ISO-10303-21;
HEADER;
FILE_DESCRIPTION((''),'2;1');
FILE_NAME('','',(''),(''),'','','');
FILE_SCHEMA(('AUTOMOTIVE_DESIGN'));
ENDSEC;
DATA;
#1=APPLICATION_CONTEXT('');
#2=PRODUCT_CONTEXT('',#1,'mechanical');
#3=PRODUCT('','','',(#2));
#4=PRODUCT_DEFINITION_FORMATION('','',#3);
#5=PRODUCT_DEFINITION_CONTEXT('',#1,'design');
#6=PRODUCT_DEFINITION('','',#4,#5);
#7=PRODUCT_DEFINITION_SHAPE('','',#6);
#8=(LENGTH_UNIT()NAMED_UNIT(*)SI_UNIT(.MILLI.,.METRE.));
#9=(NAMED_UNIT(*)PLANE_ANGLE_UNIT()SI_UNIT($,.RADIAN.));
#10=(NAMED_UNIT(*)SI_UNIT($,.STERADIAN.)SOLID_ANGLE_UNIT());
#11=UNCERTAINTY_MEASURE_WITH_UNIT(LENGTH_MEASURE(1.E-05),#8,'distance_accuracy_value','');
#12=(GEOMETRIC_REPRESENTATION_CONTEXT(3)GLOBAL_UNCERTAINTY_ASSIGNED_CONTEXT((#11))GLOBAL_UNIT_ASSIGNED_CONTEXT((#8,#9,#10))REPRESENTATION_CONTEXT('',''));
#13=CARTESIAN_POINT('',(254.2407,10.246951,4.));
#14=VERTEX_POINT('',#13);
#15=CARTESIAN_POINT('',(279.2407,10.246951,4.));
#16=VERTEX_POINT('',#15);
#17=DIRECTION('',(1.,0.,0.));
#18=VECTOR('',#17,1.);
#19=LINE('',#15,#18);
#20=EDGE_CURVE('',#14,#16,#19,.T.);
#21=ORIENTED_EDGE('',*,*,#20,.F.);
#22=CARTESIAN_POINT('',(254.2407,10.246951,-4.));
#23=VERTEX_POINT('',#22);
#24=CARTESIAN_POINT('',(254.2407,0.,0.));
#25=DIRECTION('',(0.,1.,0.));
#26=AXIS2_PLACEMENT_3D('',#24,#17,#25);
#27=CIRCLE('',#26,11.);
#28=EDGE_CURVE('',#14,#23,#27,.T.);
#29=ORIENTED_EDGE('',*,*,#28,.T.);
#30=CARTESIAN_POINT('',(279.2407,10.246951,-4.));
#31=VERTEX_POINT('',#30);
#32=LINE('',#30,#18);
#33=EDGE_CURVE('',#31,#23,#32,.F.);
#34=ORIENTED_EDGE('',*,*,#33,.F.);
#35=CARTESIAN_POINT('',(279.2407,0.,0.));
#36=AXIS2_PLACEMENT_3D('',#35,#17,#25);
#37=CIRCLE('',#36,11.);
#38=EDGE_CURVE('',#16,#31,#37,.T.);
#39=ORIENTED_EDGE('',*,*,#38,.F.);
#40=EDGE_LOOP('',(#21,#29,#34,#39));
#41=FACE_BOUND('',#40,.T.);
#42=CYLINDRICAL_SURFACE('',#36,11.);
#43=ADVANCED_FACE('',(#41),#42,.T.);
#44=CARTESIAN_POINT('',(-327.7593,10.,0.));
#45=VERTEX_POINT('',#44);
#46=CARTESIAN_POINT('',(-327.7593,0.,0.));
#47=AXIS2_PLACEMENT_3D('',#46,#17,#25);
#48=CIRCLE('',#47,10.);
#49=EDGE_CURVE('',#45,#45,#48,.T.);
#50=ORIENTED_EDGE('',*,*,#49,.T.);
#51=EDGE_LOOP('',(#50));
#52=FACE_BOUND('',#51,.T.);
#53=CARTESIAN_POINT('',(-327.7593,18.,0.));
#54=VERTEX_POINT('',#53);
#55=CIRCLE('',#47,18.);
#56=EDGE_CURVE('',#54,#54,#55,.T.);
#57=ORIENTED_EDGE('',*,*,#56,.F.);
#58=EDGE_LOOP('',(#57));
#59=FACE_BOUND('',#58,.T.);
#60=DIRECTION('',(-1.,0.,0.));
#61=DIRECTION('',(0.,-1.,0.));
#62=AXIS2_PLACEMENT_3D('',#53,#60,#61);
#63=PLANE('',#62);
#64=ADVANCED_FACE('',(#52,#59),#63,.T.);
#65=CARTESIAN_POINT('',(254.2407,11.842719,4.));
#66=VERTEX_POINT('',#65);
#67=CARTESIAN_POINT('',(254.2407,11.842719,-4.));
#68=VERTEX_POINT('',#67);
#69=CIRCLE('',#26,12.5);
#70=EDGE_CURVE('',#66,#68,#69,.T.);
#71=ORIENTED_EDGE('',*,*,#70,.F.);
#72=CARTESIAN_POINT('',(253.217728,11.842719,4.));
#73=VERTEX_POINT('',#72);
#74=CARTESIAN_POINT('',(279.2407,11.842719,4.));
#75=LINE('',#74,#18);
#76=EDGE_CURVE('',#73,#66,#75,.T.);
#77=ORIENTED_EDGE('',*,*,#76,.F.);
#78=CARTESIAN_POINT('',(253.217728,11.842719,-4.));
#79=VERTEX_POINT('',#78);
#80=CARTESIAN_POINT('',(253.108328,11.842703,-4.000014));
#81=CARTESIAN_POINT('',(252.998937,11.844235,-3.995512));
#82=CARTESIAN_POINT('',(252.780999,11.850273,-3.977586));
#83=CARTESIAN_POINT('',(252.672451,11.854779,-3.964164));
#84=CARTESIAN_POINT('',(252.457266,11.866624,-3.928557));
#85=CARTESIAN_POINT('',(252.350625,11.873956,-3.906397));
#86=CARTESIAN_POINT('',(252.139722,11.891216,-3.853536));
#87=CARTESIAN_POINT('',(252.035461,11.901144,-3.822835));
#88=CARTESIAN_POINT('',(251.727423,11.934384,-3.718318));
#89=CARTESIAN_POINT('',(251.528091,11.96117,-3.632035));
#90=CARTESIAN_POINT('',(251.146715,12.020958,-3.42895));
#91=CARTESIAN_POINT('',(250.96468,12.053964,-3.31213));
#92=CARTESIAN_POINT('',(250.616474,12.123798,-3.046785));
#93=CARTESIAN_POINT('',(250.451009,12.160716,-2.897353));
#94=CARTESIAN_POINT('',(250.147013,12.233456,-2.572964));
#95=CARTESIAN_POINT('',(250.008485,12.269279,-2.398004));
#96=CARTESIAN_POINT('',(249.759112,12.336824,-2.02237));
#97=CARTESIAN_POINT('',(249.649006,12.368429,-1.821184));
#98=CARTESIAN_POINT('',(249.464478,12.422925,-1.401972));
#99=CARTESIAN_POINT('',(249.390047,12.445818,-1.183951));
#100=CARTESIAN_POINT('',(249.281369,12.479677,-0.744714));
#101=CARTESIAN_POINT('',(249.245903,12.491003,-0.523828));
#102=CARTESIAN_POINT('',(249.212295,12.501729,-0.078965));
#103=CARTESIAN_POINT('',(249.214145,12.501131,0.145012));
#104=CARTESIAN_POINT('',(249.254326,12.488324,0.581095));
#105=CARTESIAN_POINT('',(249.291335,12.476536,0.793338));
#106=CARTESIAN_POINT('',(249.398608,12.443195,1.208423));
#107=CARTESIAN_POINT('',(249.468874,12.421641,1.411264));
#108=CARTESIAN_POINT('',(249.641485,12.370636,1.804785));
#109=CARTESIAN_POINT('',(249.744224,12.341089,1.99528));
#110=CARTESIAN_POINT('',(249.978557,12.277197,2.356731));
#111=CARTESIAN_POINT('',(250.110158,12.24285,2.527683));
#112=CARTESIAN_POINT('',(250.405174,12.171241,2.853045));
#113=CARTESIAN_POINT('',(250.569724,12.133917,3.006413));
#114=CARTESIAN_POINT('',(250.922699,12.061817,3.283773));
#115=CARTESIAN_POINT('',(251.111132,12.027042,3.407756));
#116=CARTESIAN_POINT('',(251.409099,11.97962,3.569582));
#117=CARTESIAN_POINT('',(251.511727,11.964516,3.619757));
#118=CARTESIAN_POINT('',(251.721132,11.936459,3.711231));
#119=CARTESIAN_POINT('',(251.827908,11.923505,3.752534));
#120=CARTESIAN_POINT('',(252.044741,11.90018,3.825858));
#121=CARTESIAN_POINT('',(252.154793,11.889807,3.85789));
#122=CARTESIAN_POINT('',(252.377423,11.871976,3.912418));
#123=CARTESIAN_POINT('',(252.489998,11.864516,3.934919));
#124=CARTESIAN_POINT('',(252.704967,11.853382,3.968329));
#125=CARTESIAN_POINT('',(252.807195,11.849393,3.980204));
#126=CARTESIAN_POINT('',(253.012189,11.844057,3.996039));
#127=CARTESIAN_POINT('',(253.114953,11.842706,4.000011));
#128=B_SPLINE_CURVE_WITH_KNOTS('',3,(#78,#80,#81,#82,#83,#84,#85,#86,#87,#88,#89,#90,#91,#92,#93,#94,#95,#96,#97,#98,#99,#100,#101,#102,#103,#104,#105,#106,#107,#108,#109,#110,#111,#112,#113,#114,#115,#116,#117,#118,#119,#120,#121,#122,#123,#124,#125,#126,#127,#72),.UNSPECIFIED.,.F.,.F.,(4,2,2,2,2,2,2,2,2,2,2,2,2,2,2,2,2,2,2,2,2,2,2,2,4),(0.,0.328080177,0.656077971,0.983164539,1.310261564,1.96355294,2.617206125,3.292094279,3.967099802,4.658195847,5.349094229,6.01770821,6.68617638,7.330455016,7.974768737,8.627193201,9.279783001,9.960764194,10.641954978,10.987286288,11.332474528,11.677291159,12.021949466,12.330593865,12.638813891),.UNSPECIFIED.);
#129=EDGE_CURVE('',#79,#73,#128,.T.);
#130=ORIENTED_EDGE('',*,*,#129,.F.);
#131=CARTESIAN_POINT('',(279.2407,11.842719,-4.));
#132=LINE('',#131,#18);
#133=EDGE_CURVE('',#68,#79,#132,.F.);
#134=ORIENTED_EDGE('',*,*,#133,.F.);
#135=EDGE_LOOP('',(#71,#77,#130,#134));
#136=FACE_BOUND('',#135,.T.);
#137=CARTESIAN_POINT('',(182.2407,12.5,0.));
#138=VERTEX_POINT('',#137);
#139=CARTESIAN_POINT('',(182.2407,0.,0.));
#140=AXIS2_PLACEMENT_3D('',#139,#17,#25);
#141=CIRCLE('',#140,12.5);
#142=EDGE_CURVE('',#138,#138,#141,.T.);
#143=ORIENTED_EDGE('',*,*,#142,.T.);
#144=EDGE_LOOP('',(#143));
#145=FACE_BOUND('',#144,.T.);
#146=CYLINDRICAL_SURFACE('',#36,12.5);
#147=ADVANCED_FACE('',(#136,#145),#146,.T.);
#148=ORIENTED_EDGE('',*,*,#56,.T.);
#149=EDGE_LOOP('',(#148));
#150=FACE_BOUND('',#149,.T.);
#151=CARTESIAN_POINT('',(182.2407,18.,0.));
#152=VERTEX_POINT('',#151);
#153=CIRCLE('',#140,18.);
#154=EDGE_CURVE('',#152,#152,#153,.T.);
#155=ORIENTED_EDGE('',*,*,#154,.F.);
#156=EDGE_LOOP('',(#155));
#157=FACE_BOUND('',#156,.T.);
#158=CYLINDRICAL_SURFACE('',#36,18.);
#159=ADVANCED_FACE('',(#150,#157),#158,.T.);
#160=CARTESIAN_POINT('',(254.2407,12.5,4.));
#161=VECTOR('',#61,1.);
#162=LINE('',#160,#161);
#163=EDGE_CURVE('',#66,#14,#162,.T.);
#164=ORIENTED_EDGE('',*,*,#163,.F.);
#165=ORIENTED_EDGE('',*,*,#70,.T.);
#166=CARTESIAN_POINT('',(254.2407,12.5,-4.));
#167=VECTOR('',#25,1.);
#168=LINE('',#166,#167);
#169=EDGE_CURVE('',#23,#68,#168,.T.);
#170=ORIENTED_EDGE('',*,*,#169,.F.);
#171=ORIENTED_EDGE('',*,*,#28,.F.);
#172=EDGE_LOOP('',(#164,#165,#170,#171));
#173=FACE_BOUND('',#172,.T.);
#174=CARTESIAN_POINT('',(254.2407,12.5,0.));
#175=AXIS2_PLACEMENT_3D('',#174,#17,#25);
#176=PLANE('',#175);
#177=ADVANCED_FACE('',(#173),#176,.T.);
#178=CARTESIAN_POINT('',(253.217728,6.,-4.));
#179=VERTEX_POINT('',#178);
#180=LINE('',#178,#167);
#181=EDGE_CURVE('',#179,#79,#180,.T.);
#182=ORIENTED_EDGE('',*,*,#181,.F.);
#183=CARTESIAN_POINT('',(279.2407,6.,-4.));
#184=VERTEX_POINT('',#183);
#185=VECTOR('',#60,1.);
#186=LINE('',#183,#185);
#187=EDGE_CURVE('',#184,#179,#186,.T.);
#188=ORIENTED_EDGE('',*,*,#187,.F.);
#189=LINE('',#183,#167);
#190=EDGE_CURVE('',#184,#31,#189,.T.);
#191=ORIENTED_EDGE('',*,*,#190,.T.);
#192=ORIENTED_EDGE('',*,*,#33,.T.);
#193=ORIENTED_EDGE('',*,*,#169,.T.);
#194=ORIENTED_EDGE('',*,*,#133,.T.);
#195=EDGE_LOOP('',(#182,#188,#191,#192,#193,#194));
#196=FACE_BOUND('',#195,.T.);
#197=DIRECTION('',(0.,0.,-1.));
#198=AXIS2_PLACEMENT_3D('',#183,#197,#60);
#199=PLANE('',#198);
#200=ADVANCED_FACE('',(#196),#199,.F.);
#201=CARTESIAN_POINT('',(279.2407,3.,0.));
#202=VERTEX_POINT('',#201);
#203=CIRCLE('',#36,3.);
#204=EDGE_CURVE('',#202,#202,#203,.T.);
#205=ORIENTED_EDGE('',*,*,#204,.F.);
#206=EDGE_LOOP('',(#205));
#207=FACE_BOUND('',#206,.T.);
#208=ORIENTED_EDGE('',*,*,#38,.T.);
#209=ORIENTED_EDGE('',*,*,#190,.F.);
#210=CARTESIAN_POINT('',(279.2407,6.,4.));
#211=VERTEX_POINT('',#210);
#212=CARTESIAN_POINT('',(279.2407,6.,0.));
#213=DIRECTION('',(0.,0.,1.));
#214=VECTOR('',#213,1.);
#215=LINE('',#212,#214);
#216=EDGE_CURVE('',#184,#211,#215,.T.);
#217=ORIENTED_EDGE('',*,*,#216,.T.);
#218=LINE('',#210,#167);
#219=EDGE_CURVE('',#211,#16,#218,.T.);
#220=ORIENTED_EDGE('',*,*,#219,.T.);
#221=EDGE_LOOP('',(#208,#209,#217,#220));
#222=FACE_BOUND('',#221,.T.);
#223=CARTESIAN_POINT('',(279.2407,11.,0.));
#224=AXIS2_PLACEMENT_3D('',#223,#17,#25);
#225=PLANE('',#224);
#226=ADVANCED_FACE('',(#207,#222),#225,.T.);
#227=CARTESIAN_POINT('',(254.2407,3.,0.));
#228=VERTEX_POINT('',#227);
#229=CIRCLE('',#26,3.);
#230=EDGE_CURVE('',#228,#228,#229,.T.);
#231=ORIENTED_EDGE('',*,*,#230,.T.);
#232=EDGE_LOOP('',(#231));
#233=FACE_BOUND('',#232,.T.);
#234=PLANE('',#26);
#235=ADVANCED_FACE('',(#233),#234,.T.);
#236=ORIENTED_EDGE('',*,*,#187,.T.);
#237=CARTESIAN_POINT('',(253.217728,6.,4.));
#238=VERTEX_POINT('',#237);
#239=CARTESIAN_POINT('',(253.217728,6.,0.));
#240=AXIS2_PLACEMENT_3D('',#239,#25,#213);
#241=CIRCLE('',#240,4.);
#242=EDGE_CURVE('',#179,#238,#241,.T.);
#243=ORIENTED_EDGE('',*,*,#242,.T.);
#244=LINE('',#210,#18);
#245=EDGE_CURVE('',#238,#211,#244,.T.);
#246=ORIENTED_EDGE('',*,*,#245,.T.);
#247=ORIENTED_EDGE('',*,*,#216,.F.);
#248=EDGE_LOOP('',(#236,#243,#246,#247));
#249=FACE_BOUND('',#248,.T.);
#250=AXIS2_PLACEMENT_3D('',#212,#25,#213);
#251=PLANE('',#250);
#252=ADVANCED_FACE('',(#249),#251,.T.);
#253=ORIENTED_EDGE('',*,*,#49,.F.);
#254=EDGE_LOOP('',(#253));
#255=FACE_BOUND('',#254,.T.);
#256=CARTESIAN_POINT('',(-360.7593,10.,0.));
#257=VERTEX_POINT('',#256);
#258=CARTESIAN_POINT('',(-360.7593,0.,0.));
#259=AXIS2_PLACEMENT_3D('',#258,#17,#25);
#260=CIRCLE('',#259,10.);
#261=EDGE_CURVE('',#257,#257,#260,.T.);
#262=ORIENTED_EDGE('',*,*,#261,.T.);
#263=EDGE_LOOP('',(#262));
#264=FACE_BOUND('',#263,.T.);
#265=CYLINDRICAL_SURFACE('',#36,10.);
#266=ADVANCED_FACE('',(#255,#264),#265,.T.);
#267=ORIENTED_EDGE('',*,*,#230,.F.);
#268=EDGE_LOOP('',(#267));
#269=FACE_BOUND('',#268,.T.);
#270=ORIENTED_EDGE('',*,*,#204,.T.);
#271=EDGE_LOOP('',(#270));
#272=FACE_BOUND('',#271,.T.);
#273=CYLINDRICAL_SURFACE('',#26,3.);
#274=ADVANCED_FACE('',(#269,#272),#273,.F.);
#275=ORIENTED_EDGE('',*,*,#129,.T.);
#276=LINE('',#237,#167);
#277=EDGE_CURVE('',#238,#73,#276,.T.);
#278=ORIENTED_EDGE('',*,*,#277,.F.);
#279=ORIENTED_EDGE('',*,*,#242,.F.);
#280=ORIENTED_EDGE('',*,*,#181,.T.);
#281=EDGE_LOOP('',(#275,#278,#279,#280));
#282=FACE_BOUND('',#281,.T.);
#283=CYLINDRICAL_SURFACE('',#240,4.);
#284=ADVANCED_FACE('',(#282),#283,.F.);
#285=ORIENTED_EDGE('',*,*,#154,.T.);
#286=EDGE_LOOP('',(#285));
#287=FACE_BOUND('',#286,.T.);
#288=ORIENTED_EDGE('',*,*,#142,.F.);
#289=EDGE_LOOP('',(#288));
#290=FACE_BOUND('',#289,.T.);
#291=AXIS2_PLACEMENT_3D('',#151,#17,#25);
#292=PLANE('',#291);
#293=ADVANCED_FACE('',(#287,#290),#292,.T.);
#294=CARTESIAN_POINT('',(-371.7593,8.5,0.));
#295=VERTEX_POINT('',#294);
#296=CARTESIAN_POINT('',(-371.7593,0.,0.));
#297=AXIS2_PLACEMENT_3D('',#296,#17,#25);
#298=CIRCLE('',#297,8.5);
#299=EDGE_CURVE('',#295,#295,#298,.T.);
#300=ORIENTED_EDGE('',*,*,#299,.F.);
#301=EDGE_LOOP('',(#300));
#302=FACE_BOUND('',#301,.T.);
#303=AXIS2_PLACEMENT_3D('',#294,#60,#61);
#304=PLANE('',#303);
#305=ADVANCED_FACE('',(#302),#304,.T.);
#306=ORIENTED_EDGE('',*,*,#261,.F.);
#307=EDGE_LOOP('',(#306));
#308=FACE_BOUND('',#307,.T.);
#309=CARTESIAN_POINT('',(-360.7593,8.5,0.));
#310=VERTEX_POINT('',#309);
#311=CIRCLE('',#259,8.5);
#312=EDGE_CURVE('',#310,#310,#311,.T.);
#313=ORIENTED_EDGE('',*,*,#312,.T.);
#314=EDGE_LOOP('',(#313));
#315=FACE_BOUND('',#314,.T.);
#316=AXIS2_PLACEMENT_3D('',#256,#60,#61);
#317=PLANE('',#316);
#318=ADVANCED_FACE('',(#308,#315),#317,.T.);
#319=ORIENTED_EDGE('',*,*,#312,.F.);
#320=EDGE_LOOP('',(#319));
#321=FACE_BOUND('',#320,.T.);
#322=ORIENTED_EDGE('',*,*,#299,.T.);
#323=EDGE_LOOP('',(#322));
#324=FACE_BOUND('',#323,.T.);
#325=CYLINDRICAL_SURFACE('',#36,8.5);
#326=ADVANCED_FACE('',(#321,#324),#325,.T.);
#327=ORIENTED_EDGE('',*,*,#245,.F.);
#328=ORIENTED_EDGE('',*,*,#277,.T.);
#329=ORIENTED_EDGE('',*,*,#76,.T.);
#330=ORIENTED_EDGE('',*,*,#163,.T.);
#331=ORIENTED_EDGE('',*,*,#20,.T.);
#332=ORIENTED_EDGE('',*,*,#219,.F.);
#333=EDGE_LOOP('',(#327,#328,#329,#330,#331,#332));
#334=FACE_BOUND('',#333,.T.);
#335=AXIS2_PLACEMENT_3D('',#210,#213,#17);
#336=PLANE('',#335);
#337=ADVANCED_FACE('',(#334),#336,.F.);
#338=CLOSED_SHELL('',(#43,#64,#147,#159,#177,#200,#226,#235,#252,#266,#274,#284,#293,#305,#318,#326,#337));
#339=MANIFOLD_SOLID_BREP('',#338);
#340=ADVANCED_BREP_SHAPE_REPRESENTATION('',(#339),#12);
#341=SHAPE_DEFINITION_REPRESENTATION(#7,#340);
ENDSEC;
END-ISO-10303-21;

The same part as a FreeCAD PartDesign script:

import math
import FreeCAD as App
import Part
import Sketcher

V = App.Vector
Q = App.Units.Quantity


def add_polygon(sketch, points):
    """Adds a closed chain of lines whose ends are joined by coincident constraints."""
    first, n = sketch.GeometryCount, len(points)
    for a, b in zip(points, points[1:] + points[:1]):
        sketch.addGeometry(Part.LineSegment(App.Vector(*a, 0), App.Vector(*b, 0)), False)
    for i in range(n):
        sketch.addConstraint(Sketcher.Constraint("Coincident", first + i, 2, first + (i + 1) % n, 1))

doc = App.newDocument("Part")
body = doc.addObject("PartDesign::Body", "Body")

sketch1 = body.newObject("Sketcher::SketchObject", "Sketch")
sketch1.AttachmentSupport = (doc.getObject("XY_Plane"), [""])
sketch1.MapMode = "FlatFace"
add_polygon(sketch1, [(279.2407, 11), (254.2407, 11), (254.2407, 12.5), (182.2407, 12.5), (182.2407, 18), (-327.7593, 18), (-327.7593, 10), (-360.7593, 10), (-360.7593, 8.5), (-371.7593, 8.5), (-371.7593, 0), (279.2407, 0)])
sketch1.addConstraint([
    Sketcher.Constraint("Horizontal", 0),
    Sketcher.Constraint("Vertical", 1),
    Sketcher.Constraint("Horizontal", 2),
    Sketcher.Constraint("Vertical", 3),
    Sketcher.Constraint("Horizontal", 4),
    Sketcher.Constraint("Vertical", 5),
    Sketcher.Constraint("Horizontal", 6),
    Sketcher.Constraint("Vertical", 7),
    Sketcher.Constraint("Horizontal", 8),
    Sketcher.Constraint("Vertical", 9),
    Sketcher.Constraint("Horizontal", 10),
    Sketcher.Constraint("Vertical", 11),
    Sketcher.Constraint("PointOnObject", 9, 2, -1),
    Sketcher.Constraint("Equal", 1, 7),
    Sketcher.Constraint("Equal", 8, 11),
    Sketcher.Constraint("DistanceX", 0, 2, 0, 1, Q("25 mm")),
    Sketcher.Constraint("DistanceX", 2, 2, 2, 1, Q("72 mm")),
    Sketcher.Constraint("DistanceX", 4, 2, 4, 1, Q("510 mm")),
    Sketcher.Constraint("DistanceX", 6, 2, 6, 1, Q("33 mm")),
    Sketcher.Constraint("DistanceX", 8, 2, 8, 1, Q("11 mm")),
    Sketcher.Constraint("DistanceY", 5, 2, 5, 1, Q("8 mm")),
    Sketcher.Constraint("DistanceY", 1, 1, 1, 2, Q("1.5 mm")),
    Sketcher.Constraint("DistanceY", 3, 1, 3, 2, Q("5.5 mm")),
    Sketcher.Constraint("DistanceX", -1, 1, 0, 2, Q("254.2407 mm")),
])
revolution = body.newObject("PartDesign::Revolution", "Revolution")
revolution.Profile = sketch1
revolution.ReferenceAxis = (sketch1, ["H_Axis"])
revolution.Angle = 360

sketch2 = body.newObject("Sketcher::SketchObject", "Sketch001")
sketch2.AttachmentSupport = (doc.getObject("XZ_Plane"), [""])
sketch2.MapMode = "FlatFace"
sketch2.AttachmentOffset = App.Placement(V(0, 0, -20), App.Rotation())
sketch2.addGeometry([
    Part.LineSegment(V(253.217728, 4, 0), V(279.2407, 4, 0)),
    Part.ArcOfCircle(Part.Circle(V(279.2407, 0, 0), V(0, 0, 1), 4), math.radians(-90), math.radians(90)),
    Part.LineSegment(V(279.2407, -4, 0), V(253.217728, -4, 0)),
    Part.ArcOfCircle(Part.Circle(V(253.217728, 0, 0), V(0, 0, 1), 4), math.radians(90), math.radians(270)),
], False)
sketch2.addConstraint([
    Sketcher.Constraint("Tangent", 0, 2, 1, 2),
    Sketcher.Constraint("Tangent", 1, 1, 2, 1),
    Sketcher.Constraint("Tangent", 2, 2, 3, 2),
    Sketcher.Constraint("Tangent", 3, 1, 0, 1),
    Sketcher.Constraint("Horizontal", 0),
    Sketcher.Constraint("Horizontal", 2),
    Sketcher.Constraint("PointOnObject", 1, 3, -1),
    Sketcher.Constraint("Radius", 1, Q("4 mm")),
    Sketcher.Constraint("DistanceX", -1, 1, 1, 3, Q("279.2407 mm")),
    Sketcher.Constraint("DistanceX", 0, 1, 0, 2, Q("26.022972 mm")),
])
pocket1 = body.newObject("PartDesign::Pocket", "Pocket")
pocket1.Profile = sketch2
pocket1.Length = 14
pocket1.Reversed = True

sketch3 = body.newObject("Sketcher::SketchObject", "Sketch002")
sketch3.AttachmentSupport = (doc.getObject("YZ_Plane"), [""])
sketch3.MapMode = "FlatFace"
sketch3.AttachmentOffset = App.Placement(V(0, 0, 279.2407), App.Rotation())
sketch3.addGeometry(Part.Circle(V(0, 0, 0), V(0, 0, 1), 3), False)
sketch3.addConstraint([
    Sketcher.Constraint("Coincident", 0, 3, -1, 1),
    Sketcher.Constraint("Diameter", 0, Q("6 mm")),
])
pocket2 = body.newObject("PartDesign::Pocket", "Pocket001")
pocket2.Profile = sketch3
pocket2.Length = 25

doc.recompute()
